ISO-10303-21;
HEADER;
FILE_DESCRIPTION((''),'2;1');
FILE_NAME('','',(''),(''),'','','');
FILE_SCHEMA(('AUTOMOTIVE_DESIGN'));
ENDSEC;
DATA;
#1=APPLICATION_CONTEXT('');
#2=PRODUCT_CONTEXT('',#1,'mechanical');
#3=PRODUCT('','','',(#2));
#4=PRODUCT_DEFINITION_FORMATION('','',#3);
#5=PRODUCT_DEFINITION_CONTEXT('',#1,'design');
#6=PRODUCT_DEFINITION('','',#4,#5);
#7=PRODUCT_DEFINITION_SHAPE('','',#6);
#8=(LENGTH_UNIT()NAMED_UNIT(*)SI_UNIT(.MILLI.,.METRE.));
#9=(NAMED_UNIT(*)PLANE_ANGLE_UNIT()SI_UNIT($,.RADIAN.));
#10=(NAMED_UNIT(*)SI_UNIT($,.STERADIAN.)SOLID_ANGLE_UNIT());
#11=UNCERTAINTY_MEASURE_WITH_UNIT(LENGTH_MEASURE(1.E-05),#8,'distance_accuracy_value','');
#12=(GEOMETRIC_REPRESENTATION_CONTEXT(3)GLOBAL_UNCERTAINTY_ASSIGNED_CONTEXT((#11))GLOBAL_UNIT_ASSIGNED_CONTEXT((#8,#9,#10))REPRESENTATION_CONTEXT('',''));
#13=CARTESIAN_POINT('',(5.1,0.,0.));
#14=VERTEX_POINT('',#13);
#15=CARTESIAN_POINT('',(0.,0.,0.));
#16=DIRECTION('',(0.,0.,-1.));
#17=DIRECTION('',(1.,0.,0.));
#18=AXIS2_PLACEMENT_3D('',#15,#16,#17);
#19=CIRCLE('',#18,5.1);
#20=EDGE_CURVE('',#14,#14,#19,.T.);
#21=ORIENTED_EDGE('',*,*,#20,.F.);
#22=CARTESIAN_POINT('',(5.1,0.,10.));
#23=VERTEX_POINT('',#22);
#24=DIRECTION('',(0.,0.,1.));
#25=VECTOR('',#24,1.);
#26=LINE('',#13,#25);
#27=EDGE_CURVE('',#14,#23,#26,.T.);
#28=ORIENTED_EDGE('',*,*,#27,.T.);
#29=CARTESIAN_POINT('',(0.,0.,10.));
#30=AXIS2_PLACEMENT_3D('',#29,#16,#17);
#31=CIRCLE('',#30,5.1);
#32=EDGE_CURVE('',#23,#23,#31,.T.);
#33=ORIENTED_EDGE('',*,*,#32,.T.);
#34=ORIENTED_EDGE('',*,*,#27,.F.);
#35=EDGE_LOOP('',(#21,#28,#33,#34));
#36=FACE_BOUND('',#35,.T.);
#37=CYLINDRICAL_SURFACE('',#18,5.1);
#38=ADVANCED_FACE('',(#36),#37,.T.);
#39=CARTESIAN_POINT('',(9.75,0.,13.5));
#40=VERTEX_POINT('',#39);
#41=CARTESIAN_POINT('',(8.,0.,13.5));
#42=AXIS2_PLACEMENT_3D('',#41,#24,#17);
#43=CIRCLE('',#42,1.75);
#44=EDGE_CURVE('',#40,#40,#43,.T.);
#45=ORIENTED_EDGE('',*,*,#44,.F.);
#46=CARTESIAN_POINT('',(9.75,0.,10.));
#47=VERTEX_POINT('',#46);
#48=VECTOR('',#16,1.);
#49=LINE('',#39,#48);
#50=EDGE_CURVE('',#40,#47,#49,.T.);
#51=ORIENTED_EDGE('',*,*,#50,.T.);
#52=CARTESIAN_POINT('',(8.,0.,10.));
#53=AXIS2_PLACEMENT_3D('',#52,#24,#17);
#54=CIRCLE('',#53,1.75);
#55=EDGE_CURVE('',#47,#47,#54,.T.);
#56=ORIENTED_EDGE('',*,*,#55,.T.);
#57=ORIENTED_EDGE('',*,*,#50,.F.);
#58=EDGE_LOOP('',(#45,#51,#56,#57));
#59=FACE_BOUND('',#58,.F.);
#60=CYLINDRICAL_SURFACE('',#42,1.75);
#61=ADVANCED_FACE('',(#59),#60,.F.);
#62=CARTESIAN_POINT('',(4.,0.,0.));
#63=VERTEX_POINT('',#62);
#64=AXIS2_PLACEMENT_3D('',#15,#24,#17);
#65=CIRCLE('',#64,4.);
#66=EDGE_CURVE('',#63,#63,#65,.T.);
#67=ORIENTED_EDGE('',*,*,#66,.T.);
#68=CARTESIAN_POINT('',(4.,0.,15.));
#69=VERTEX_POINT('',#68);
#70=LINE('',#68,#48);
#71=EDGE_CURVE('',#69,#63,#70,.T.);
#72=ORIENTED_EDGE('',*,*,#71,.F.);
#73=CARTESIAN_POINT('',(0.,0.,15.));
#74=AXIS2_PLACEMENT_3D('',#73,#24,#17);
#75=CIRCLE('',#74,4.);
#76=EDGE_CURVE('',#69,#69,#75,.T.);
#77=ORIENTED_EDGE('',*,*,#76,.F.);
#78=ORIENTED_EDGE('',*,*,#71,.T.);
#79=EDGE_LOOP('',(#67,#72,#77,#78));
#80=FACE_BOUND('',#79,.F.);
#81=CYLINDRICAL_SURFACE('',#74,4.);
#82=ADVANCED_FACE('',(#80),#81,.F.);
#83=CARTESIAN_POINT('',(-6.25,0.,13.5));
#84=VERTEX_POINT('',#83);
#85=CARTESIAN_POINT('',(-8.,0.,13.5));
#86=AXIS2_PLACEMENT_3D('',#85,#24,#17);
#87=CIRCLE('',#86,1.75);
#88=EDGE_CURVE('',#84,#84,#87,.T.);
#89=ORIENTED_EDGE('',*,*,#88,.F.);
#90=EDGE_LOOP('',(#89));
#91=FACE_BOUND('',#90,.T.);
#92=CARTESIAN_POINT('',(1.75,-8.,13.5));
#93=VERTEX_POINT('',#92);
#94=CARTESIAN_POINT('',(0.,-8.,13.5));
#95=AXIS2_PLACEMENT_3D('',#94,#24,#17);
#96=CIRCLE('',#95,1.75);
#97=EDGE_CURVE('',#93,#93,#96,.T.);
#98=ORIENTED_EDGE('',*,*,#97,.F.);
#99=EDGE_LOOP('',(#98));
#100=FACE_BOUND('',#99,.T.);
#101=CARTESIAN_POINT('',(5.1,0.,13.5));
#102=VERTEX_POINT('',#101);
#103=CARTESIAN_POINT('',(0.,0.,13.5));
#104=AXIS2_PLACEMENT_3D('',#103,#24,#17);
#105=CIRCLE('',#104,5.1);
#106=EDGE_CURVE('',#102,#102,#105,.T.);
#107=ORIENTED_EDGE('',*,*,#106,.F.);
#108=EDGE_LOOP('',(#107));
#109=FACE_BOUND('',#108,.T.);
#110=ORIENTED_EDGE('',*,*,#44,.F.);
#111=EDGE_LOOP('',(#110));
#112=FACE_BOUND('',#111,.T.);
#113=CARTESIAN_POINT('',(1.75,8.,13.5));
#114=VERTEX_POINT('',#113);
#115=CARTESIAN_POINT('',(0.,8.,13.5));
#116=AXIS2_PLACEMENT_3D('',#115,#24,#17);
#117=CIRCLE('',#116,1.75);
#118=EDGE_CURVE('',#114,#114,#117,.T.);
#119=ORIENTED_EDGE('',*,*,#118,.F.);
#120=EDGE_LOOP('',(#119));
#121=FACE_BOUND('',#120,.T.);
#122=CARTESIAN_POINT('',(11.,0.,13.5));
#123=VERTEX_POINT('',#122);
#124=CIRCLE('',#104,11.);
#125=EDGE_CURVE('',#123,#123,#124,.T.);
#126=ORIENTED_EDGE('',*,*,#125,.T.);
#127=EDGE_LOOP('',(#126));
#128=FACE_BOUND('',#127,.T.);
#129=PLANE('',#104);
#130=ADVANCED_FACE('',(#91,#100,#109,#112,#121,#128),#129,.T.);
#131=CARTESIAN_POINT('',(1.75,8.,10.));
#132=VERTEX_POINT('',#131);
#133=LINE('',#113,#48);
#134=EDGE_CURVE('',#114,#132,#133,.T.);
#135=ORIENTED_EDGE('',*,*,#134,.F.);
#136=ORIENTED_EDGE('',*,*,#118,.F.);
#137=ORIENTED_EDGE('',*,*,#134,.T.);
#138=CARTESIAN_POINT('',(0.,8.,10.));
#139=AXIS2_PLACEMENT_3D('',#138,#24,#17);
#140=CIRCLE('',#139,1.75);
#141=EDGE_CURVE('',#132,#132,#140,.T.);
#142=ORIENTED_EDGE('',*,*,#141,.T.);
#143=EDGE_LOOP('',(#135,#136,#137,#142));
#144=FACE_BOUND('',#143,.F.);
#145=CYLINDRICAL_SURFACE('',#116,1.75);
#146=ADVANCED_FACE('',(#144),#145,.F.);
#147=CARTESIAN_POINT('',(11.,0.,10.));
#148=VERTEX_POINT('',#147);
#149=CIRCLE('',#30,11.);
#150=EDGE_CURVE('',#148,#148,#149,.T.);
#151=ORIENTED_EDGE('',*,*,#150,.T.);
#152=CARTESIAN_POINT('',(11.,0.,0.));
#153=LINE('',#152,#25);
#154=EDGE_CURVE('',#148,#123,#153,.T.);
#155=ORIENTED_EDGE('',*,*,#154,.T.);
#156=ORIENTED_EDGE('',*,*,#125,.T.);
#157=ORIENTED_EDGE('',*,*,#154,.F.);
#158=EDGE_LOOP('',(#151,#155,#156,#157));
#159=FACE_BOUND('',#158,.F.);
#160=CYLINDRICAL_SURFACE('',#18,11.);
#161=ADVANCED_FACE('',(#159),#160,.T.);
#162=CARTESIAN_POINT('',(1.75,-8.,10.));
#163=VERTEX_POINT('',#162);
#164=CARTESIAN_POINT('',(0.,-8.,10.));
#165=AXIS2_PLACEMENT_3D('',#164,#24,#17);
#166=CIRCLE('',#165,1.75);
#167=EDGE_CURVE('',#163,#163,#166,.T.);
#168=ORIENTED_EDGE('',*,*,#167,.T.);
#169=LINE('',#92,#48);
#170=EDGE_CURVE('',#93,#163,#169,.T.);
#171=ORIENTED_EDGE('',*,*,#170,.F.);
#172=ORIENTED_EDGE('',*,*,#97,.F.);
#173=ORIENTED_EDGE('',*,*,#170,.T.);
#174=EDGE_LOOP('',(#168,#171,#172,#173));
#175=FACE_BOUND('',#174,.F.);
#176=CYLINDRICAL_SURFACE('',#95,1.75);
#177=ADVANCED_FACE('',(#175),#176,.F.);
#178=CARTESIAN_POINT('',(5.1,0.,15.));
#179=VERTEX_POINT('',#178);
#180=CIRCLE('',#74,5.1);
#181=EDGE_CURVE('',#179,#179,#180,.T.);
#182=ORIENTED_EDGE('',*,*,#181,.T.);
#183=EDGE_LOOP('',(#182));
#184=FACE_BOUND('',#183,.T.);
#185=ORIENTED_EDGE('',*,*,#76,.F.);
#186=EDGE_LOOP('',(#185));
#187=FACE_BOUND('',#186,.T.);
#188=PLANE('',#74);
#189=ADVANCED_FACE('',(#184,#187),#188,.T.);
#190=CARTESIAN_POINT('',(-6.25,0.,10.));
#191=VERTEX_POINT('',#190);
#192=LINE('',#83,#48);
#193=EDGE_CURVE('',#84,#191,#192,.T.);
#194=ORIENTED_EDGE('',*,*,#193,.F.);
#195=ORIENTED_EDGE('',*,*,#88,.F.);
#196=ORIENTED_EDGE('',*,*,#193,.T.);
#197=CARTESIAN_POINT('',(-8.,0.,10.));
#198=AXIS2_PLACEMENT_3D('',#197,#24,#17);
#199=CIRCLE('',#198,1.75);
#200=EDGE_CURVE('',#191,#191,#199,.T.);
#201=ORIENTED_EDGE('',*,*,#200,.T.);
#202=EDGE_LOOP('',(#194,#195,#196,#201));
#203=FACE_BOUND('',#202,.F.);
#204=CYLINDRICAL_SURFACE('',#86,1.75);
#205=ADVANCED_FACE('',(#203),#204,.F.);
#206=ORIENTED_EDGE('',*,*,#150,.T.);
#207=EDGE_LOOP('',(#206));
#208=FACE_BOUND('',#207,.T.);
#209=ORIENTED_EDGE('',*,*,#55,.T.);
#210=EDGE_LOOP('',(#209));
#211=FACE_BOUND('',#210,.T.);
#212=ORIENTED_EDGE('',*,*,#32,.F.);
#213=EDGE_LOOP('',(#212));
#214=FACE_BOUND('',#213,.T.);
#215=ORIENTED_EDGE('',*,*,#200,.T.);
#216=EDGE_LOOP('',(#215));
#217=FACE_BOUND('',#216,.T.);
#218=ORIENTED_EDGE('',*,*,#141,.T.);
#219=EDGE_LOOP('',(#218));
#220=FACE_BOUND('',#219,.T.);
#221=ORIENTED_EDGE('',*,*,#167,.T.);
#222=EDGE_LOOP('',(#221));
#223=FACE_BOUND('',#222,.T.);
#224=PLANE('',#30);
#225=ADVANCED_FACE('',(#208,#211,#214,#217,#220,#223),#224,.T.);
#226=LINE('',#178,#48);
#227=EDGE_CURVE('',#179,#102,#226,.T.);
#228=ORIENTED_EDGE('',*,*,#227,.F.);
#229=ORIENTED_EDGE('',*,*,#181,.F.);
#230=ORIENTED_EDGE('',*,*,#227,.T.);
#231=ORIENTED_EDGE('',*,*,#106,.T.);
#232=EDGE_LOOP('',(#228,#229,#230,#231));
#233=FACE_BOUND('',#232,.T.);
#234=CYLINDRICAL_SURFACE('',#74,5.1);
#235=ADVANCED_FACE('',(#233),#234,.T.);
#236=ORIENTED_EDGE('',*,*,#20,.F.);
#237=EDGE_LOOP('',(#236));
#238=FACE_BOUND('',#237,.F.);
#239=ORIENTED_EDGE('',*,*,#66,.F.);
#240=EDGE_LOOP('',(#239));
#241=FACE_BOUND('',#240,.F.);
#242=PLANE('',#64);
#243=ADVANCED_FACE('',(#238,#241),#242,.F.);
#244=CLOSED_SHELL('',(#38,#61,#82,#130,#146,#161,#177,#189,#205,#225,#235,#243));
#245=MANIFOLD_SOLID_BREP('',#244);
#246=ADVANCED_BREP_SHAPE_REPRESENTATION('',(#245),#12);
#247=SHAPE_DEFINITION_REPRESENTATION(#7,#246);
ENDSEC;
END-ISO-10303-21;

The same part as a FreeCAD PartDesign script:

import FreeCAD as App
import Part
import Sketcher

doc = App.newDocument("Part")
body = doc.addObject("PartDesign::Body", "Body")

# Sketch on XY plane
sketch1 = body.newObject("Sketcher::SketchObject", "Sketch")
sketch1.AttachmentSupport = (doc.getObject("XY_Plane"), [""])
sketch1.MapMode = "FlatFace"
sketch1.addGeometry(Part.Circle(App.Vector(0, 0, 0), App.Vector(0, 0, 1), 11), False)
sketch1.addConstraint(Sketcher.Constraint("Coincident", 0, 3, -1, 1))
sketch1.addConstraint(Sketcher.Constraint("Diameter", 0, 22.0))
pad1 = body.newObject("PartDesign::Pad", "Pad")
pad1.Profile = sketch1
pad1.Length = 15

# Sketch on XY plane
sketch2 = body.newObject("Sketcher::SketchObject", "Sketch001")
sketch2.AttachmentSupport = (doc.getObject("XY_Plane"), [""])
sketch2.MapMode = "FlatFace"
sketch2.AttachmentOffset = App.Placement(App.Vector(0, 0, 15), App.Rotation())
sketch2.addGeometry(Part.Circle(App.Vector(0, 0, 0), App.Vector(0, 0, 1), 11), False)
sketch2.addGeometry(Part.Circle(App.Vector(0, 0, 0), App.Vector(0, 0, 1), 5), False)
sketch2.addConstraint(Sketcher.Constraint("Coincident", 0, 3, -1, 1))
sketch2.addConstraint(Sketcher.Constraint("Coincident", 1, 3, -1, 1))
sketch2.addConstraint(Sketcher.Constraint("Diameter", 0, 22.0))
sketch2.addConstraint(Sketcher.Constraint("Diameter", 1, 10.2))
pocket1 = body.newObject("PartDesign::Pocket", "Pocket")
pocket1.Profile = sketch2
pocket1.Length = 1.5

# Sketch on XY plane
sketch3 = body.newObject("Sketcher::SketchObject", "Sketch002")
sketch3.AttachmentSupport = (doc.getObject("XY_Plane"), [""])
sketch3.MapMode = "FlatFace"
sketch3.addGeometry(Part.Circle(App.Vector(0, 0, 0), App.Vector(0, 0, 1), 11), False)
sketch3.addGeometry(Part.Circle(App.Vector(0, 0, 0), App.Vector(0, 0, 1), 5), False)
sketch3.addConstraint(Sketcher.Constraint("Coincident", 0, 3, -1, 1))
sketch3.addConstraint(Sketcher.Constraint("Coincident", 1, 3, -1, 1))
sketch3.addConstraint(Sketcher.Constraint("Diameter", 0, 22.0))
sketch3.addConstraint(Sketcher.Constraint("Diameter", 1, 10.2))
pocket2 = body.newObject("PartDesign::Pocket", "Pocket001")
pocket2.Profile = sketch3
pocket2.Length = 10
pocket2.Reversed = True

# Sketch on XY plane
sketch4 = body.newObject("Sketcher::SketchObject", "Sketch003")
sketch4.AttachmentSupport = (doc.getObject("XY_Plane"), [""])
sketch4.MapMode = "FlatFace"
sketch4.AttachmentOffset = App.Placement(App.Vector(0, 0, 13.5), App.Rotation())
sketch4.addGeometry(Part.Circle(App.Vector(8, 0, 0), App.Vector(0, 0, 1), 1.8), False)
sketch4.addGeometry(Part.Circle(App.Vector(-8, 0, 0), App.Vector(0, 0, 1), 1.8), False)
sketch4.addGeometry(Part.Circle(App.Vector(0, 8, 0), App.Vector(0, 0, 1), 1.8), False)
sketch4.addGeometry(Part.Circle(App.Vector(0, -8, 0), App.Vector(0, 0, 1), 1.8), False)
sketch4.addConstraint(Sketcher.Constraint("Equal", 0, 1))
sketch4.addConstraint(Sketcher.Constraint("Equal", 1, 2))
sketch4.addConstraint(Sketcher.Constraint("Equal", 2, 3))
sketch4.addConstraint(Sketcher.Constraint("Symmetric", 0, 3, 1, 3, -1, 1))
sketch4.addConstraint(Sketcher.Constraint("Symmetric", 2, 3, 3, 3, -1, 1))
sketch4.addConstraint(Sketcher.Constraint("PointOnObject", 0, 3, -1))
sketch4.addConstraint(Sketcher.Constraint("PointOnObject", 2, 3, -2))
sketch4.addConstraint(Sketcher.Constraint("Diameter", 0, 3.5))
sketch4.addConstraint(Sketcher.Constraint("DistanceX", -1, 1, 0, 3, 8.0))
sketch4.addConstraint(Sketcher.Constraint("DistanceY", -1, 1, 2, 3, 8.0))
pocket3 = body.newObject("PartDesign::Pocket", "Pocket002")
pocket3.Profile = sketch4
pocket3.Type = "ThroughAll"

# Sketch on XY plane
sketch5 = body.newObject("Sketcher::SketchObject", "Sketch004")
sketch5.AttachmentSupport = (doc.getObject("XY_Plane"), [""])
sketch5.MapMode = "FlatFace"
sketch5.AttachmentOffset = App.Placement(App.Vector(0, 0, 15), App.Rotation())
sketch5.addGeometry(Part.Circle(App.Vector(0, 0, 0), App.Vector(0, 0, 1), 4), False)
sketch5.addConstraint(Sketcher.Constraint("Coincident", 0, 3, -1, 1))
sketch5.addConstraint(Sketcher.Constraint("Diameter", 0, 8.0))
pocket4 = body.newObject("PartDesign::Pocket", "Pocket003")
pocket4.Profile = sketch5
pocket4.Type = "ThroughAll"

doc.recompute()
